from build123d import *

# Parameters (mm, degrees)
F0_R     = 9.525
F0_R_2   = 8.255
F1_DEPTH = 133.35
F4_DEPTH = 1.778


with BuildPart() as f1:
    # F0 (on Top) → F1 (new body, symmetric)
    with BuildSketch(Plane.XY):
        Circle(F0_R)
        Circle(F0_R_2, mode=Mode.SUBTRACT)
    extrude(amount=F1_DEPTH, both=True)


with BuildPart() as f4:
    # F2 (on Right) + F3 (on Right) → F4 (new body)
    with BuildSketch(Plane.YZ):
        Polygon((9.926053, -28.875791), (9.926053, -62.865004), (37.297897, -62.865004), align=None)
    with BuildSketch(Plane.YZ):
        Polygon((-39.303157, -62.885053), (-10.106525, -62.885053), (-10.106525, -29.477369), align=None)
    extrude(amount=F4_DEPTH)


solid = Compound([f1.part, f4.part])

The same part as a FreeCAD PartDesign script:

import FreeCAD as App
import Part
import Sketcher
Q = App.Units.Quantity

doc = App.newDocument("Part")
body = doc.addObject("PartDesign::Body", "Body")

# Sketch on XY plane
sketch1 = body.newObject("Sketcher::SketchObject", "Sketch")
sketch1.AttachmentSupport = (doc.getObject("XY_Plane"), [""])
sketch1.MapMode = "FlatFace"
sketch1.addGeometry(Part.Circle(App.Vector(0, 0, 0), App.Vector(0, 0, 1), 10), False)
sketch1.addGeometry(Part.Circle(App.Vector(0, 0, 0), App.Vector(0, 0, 1), 8), False)
sketch1.addConstraint(Sketcher.Constraint("Coincident", 0, 3, -1, 1))
sketch1.addConstraint(Sketcher.Constraint("Coincident", 1, 3, -1, 1))
sketch1.addConstraint(Sketcher.Constraint("Diameter", 0, Q("0.75 in")))
sketch1.addConstraint(Sketcher.Constraint("Diameter", 1, Q("0.65 in")))
pad1 = body.newObject("PartDesign::Pad", "Pad")
pad1.Profile = sketch1
pad1.Length = Q("10.5 in")
pad1.Midplane = True
body2 = doc.addObject("PartDesign::Body", "Body001")
body2.AllowCompound = True

# Sketch on YZ plane
sketch2 = body2.newObject("Sketcher::SketchObject", "Sketch001")
sketch2.AttachmentSupport = (doc.getObject("YZ_Plane001"), [""])
sketch2.MapMode = "FlatFace"
sketch2.addGeometry(Part.LineSegment(App.Vector(10, -29, 0), App.Vector(10, -63, 0)), False)
sketch2.addGeometry(Part.LineSegment(App.Vector(10, -63, 0), App.Vector(37, -63, 0)), False)
sketch2.addGeometry(Part.LineSegment(App.Vector(37, -63, 0), App.Vector(10, -29, 0)), False)
sketch2.addGeometry(Part.LineSegment(App.Vector(-39, -63, 0), App.Vector(-10, -63, 0)), False)
sketch2.addGeometry(Part.LineSegment(App.Vector(-10, -63, 0), App.Vector(-10, -29, 0)), False)
sketch2.addGeometry(Part.LineSegment(App.Vector(-10, -29, 0), App.Vector(-39, -63, 0)), False)
sketch2.addConstraint(Sketcher.Constraint("Coincident", 0, 2, 1, 1))
sketch2.addConstraint(Sketcher.Constraint("Coincident", 1, 2, 2, 1))
sketch2.addConstraint(Sketcher.Constraint("Coincident", 2, 2, 0, 1))
sketch2.addConstraint(Sketcher.Constraint("Coincident", 3, 2, 4, 1))
sketch2.addConstraint(Sketcher.Constraint("Coincident", 4, 2, 5, 1))
sketch2.addConstraint(Sketcher.Constraint("Coincident", 5, 2, 3, 1))
sketch2.addConstraint(Sketcher.Constraint("Vertical", 0))
sketch2.addConstraint(Sketcher.Constraint("Horizontal", 1))
sketch2.addConstraint(Sketcher.Constraint("Horizontal", 3))
sketch2.addConstraint(Sketcher.Constraint("Vertical", 4))
sketch2.addConstraint(Sketcher.Constraint("DistanceY", 0, 2, -1, 1, Q("2.4750002 in")))
sketch2.addConstraint(Sketcher.Constraint("Distance", 2, 43.640399))
sketch2.addConstraint(Sketcher.Constraint("Distance", 5, 44.367969))
sketch2.addConstraint(Sketcher.Constraint("DistanceX", 1, 1, 1, 2, 27.371844))
sketch2.addConstraint(Sketcher.Constraint("DistanceX", 3, 1, 3, 2, 29.196632))
sketch2.addConstraint(Sketcher.Constraint("DistanceY", 4, 2, -1, 1, 29.477369))
sketch2.addConstraint(Sketcher.Constraint("DistanceX", 3, 2, 0, 2, 20.032578))
sketch2.addConstraint(Sketcher.Constraint("DistanceX", -1, 1, 0, 2, 9.926053))
pad2 = body2.newObject("PartDesign::Pad", "Pad001")
pad2.Profile = sketch2
pad2.Length = Q("0.07 in")

doc.recompute()
